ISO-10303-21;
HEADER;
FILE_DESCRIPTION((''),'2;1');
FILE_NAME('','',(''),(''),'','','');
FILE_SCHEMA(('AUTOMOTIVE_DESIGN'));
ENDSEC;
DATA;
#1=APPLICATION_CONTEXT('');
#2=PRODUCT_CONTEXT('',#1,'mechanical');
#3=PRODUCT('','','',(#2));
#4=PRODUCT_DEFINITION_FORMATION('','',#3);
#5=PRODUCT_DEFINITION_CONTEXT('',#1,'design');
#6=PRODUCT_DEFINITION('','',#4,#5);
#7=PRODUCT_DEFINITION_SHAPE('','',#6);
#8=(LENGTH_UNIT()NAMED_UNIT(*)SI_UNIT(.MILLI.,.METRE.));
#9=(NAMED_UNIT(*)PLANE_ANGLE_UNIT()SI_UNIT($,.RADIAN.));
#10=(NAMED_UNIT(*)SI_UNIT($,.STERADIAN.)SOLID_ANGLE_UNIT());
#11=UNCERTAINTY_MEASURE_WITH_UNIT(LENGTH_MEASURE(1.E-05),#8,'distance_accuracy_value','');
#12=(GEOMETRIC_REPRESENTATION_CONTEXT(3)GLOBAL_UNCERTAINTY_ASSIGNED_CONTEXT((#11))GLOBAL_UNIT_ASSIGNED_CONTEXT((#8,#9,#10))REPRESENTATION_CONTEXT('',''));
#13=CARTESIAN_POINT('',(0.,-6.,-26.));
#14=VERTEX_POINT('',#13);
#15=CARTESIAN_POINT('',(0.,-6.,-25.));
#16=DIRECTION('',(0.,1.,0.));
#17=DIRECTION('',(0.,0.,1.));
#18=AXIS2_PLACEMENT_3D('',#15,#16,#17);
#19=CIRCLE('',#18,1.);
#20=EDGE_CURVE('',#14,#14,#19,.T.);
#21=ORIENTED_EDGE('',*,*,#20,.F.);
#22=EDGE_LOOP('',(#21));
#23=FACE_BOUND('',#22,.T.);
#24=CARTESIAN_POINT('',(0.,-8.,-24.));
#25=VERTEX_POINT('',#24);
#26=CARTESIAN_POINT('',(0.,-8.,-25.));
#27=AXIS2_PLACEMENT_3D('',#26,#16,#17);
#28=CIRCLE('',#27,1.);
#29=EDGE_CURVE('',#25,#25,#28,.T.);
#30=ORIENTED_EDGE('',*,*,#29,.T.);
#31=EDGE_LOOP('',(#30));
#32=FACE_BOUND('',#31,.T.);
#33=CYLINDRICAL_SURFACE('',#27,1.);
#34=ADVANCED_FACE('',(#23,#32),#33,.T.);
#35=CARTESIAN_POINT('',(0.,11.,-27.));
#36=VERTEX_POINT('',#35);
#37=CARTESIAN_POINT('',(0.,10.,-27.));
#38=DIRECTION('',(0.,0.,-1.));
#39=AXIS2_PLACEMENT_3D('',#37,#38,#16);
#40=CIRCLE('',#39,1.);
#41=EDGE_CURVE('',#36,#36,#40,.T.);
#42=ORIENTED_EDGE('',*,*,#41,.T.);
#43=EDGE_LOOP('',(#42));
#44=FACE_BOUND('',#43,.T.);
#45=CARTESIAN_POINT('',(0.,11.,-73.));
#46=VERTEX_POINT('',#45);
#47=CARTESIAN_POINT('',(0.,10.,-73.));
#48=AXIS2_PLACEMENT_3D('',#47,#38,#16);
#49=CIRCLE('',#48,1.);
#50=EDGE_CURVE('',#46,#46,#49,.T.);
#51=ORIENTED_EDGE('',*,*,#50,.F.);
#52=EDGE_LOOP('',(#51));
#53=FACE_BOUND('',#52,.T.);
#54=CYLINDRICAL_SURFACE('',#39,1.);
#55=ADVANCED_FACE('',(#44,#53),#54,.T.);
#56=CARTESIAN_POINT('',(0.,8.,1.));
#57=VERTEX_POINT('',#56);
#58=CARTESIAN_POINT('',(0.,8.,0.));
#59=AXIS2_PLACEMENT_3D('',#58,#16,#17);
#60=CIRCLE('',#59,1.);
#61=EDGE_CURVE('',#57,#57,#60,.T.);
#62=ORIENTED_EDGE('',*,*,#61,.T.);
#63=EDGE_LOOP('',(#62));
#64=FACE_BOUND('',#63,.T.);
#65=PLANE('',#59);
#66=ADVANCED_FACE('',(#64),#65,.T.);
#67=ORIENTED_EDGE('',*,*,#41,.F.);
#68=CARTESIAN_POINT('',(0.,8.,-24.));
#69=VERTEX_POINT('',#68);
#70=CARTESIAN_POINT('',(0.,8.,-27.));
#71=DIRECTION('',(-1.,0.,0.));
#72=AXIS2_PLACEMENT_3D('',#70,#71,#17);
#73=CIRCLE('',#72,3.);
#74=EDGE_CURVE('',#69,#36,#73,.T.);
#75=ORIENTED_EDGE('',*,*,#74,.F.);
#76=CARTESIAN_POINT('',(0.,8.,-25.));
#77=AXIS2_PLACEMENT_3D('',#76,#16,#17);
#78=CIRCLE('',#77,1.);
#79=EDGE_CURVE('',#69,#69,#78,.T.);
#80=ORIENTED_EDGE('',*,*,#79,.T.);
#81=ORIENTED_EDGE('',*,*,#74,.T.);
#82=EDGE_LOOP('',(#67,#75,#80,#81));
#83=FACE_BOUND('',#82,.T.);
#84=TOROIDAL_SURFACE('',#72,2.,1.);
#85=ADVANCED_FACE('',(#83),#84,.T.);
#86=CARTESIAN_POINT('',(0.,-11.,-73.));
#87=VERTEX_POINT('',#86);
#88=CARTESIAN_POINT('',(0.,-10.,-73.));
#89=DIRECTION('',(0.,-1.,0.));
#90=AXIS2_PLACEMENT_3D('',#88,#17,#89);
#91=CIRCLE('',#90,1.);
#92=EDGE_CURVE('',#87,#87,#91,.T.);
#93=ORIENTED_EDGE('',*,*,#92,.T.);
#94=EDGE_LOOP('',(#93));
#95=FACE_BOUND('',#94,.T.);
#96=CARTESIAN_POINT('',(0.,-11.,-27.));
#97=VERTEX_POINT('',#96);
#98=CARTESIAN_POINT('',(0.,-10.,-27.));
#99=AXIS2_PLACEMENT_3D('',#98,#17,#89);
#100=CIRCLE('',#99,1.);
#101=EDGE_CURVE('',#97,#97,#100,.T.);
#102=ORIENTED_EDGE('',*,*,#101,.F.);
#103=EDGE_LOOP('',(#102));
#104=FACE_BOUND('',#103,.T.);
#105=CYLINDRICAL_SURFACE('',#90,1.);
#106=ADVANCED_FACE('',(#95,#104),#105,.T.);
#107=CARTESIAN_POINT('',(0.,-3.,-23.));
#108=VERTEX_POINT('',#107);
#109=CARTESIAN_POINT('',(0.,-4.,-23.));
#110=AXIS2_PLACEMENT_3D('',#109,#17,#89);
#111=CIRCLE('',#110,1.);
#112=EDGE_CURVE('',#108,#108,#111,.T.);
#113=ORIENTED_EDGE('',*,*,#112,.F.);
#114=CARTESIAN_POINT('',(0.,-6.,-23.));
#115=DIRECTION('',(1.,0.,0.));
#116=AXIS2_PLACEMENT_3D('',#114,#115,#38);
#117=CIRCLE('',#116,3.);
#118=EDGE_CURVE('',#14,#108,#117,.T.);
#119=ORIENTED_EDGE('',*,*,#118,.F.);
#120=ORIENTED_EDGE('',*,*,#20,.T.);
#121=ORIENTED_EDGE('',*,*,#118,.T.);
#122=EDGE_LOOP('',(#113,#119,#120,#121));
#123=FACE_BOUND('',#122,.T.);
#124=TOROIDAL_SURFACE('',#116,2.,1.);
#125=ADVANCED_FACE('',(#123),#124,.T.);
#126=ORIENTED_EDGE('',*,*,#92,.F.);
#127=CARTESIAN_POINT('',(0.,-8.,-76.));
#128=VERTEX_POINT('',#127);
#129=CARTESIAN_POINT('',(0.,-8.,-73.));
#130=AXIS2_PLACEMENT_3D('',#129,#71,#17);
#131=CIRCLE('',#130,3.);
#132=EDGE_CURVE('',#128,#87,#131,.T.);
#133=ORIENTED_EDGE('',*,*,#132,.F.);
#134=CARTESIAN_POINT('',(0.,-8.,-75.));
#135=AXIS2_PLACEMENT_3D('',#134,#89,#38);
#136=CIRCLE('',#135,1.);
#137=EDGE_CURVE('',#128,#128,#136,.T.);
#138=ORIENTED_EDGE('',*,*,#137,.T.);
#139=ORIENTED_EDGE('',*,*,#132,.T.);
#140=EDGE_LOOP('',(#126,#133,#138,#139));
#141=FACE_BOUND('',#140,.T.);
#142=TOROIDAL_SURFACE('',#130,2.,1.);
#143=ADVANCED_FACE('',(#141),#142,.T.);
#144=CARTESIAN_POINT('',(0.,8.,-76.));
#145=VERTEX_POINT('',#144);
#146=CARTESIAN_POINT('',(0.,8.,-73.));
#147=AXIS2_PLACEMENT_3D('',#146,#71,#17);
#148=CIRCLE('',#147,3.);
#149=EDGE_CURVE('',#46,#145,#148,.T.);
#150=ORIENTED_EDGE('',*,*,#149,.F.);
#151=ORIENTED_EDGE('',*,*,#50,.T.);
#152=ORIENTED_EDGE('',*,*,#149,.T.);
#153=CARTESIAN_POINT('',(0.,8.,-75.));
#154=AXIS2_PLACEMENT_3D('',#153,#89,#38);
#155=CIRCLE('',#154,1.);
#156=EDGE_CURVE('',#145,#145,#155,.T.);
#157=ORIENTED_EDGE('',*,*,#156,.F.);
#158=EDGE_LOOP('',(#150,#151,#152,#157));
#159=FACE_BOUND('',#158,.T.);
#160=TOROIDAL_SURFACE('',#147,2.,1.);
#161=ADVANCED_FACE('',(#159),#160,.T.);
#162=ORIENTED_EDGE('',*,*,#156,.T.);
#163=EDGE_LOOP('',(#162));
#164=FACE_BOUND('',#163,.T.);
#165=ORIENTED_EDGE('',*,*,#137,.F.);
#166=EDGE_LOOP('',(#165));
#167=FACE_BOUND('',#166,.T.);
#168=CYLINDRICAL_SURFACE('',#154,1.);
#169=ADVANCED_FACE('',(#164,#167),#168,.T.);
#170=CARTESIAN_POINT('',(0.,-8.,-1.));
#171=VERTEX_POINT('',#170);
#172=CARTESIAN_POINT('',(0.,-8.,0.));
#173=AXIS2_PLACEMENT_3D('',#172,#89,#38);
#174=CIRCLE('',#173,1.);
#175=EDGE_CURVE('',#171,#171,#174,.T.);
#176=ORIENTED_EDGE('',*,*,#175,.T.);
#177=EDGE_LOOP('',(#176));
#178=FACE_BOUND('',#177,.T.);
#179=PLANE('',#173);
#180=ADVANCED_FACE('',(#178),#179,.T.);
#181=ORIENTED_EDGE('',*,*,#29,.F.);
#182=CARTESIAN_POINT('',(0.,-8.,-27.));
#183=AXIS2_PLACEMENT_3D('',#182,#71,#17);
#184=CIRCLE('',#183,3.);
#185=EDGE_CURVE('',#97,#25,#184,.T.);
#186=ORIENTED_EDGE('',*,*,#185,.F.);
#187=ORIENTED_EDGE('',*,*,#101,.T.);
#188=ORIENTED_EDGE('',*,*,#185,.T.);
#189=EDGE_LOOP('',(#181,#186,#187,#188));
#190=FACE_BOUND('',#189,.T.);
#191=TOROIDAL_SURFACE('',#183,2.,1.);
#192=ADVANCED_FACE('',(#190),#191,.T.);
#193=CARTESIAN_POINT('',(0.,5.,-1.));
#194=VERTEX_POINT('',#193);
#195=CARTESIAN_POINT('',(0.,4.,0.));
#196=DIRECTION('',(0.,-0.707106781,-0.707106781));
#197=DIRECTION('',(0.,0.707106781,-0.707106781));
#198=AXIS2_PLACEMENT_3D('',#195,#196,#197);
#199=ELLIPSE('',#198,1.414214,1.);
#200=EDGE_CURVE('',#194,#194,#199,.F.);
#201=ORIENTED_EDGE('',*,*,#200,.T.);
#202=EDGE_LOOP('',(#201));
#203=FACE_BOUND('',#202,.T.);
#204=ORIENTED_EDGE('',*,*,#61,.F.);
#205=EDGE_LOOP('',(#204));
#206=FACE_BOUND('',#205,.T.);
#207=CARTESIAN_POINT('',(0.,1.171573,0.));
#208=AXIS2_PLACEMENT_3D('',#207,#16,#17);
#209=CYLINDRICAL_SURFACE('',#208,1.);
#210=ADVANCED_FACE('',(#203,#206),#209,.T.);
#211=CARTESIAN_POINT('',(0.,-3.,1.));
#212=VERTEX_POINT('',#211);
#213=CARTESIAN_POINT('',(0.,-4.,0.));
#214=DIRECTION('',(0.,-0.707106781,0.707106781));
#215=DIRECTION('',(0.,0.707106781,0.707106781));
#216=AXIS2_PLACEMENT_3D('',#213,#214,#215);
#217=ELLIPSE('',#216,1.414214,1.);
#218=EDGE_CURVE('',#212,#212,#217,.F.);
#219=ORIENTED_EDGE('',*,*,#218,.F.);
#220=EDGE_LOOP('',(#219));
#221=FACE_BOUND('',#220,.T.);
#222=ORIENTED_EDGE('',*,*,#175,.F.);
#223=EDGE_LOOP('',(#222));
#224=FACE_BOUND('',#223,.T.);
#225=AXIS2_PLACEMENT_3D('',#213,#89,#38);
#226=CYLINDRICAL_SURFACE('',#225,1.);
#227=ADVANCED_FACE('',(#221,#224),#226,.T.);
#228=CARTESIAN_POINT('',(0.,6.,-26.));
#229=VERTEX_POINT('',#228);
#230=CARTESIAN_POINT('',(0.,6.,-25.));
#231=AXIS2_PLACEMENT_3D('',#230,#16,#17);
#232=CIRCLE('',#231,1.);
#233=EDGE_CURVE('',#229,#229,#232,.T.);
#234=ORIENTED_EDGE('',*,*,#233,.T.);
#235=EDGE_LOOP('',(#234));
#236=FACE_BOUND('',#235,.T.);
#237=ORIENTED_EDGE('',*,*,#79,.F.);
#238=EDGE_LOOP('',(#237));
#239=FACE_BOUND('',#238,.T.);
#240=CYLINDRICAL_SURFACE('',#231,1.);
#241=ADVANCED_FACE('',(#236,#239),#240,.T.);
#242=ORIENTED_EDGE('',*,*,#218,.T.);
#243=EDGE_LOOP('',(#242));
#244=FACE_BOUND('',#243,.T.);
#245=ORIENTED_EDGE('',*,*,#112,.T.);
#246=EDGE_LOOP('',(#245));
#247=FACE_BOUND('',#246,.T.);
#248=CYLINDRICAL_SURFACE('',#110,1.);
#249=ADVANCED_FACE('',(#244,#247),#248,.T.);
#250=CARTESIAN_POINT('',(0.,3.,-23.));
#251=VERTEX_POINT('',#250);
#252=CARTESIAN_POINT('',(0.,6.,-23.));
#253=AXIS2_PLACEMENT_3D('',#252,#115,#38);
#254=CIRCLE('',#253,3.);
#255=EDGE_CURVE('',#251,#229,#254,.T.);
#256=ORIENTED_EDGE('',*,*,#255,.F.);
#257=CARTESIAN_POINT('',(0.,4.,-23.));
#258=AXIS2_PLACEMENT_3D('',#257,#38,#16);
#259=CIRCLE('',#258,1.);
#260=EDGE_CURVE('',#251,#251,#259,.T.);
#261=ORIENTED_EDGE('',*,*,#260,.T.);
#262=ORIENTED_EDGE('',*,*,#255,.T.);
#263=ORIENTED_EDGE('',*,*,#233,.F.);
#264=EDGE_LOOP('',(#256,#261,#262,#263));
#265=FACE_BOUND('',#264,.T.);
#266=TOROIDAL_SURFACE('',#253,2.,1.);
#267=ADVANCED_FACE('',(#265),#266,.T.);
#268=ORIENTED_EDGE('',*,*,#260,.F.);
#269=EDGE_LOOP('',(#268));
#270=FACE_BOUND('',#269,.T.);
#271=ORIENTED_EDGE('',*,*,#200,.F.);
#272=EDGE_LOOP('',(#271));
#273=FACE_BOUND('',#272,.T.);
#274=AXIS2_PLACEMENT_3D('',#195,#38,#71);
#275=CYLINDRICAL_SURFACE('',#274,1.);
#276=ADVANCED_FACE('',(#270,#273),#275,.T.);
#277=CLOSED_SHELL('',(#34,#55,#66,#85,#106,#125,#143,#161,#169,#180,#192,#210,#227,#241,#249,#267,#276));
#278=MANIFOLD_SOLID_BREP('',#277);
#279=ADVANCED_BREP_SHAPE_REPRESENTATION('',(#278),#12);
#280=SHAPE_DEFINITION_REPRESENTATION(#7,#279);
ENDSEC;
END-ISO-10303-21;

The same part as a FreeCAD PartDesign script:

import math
import FreeCAD as App
import Part
import Sketcher
from FreeCAD import Vector

doc = App.newDocument("Part")
body = doc.addObject("PartDesign::Body", "Body")

# Sketch on XZ plane
sketch1 = body.newObject("Sketcher::SketchObject", "Sketch")
sketch1.AttachmentSupport = (doc.getObject("XZ_Plane"), [""])
sketch1.MapMode = "FlatFace"
sketch1.AttachmentOffset = App.Placement(Vector(0, 0, -8), App.Rotation())
sketch1.addGeometry(Part.Circle(Vector(0, 0, 0), Vector(0, 0, 1), 1), False)
sketch1.addConstraint(Sketcher.Constraint("Coincident", 0, 3, -1, 1))
sketch1.addConstraint(Sketcher.Constraint("Diameter", 0, 2.0))

# Sketch on YZ plane
sketch2 = body.newObject("Sketcher::SketchObject", "Sketch001")
sketch2.AttachmentSupport = (doc.getObject("YZ_Plane"), [""])
sketch2.MapMode = "FlatFace"
sketch2.addGeometry(Part.LineSegment(Vector(8, 0, 0), Vector(4, 0, 0)), False)
sketch2.addGeometry(Part.LineSegment(Vector(4, 0, 0), Vector(4, -23, 0)), False)
sketch2.addGeometry(Part.ArcOfCircle(Part.Circle(Vector(6, -23, 0), Vector(0, 0, 1), 2), math.radians(-180), math.radians(-90)), False)
sketch2.addGeometry(Part.LineSegment(Vector(6, -25, 0), Vector(8, -25, 0)), False)
sketch2.addGeometry(Part.ArcOfCircle(Part.Circle(Vector(8, -27, 0), Vector(0, 0, 1), 2), math.radians(0), math.radians(90)), False)
sketch2.addGeometry(Part.LineSegment(Vector(10, -27, 0), Vector(10, -73, 0)), False)
sketch2.addGeometry(Part.ArcOfCircle(Part.Circle(Vector(8, -73, 0), Vector(0, 0, 1), 2), math.radians(-90), math.radians(0)), False)
sketch2.addGeometry(Part.LineSegment(Vector(8, -75, 0), Vector(-8, -75, 0)), False)
sketch2.addGeometry(Part.ArcOfCircle(Part.Circle(Vector(-8, -73, 0), Vector(0, 0, 1), 2), math.radians(-180), math.radians(-90)), False)
sketch2.addGeometry(Part.LineSegment(Vector(-10, -73, 0), Vector(-10, -27, 0)), False)
sketch2.addGeometry(Part.ArcOfCircle(Part.Circle(Vector(-8, -27, 0), Vector(0, 0, 1), 2), math.radians(90), math.radians(180)), False)
sketch2.addGeometry(Part.LineSegment(Vector(-8, -25, 0), Vector(-6, -25, 0)), False)
sketch2.addGeometry(Part.ArcOfCircle(Part.Circle(Vector(-6, -23, 0), Vector(0, 0, 1), 2), math.radians(-90), math.radians(0)), False)
sketch2.addGeometry(Part.LineSegment(Vector(-4, -23, 0), Vector(-4, 0, 0)), False)
sketch2.addGeometry(Part.LineSegment(Vector(-4, 0, 0), Vector(-8, 0, 0)), False)
sketch2.addConstraint(Sketcher.Constraint("Coincident", 0, 2, 1, 1))
sketch2.addConstraint(Sketcher.Constraint("Tangent", 1, 2, 2, 1))
sketch2.addConstraint(Sketcher.Constraint("Tangent", 2, 2, 3, 1))
sketch2.addConstraint(Sketcher.Constraint("Tangent", 3, 2, 4, 2))
sketch2.addConstraint(Sketcher.Constraint("Tangent", 4, 1, 5, 1))
sketch2.addConstraint(Sketcher.Constraint("Tangent", 5, 2, 6, 2))
sketch2.addConstraint(Sketcher.Constraint("Tangent", 6, 1, 7, 1))
sketch2.addConstraint(Sketcher.Constraint("Tangent", 7, 2, 8, 2))
sketch2.addConstraint(Sketcher.Constraint("Tangent", 8, 1, 9, 1))
sketch2.addConstraint(Sketcher.Constraint("Tangent", 9, 2, 10, 2))
sketch2.addConstraint(Sketcher.Constraint("Tangent", 10, 1, 11, 1))
sketch2.addConstraint(Sketcher.Constraint("Tangent", 11, 2, 12, 1))
sketch2.addConstraint(Sketcher.Constraint("Tangent", 12, 2, 13, 1))
sketch2.addConstraint(Sketcher.Constraint("Coincident", 13, 2, 14, 1))
sketch2.addConstraint(Sketcher.Constraint("Horizontal", 0))
sketch2.addConstraint(Sketcher.Constraint("Vertical", 1))
sketch2.addConstraint(Sketcher.Constraint("Horizontal", 3))
sketch2.addConstraint(Sketcher.Constraint("Vertical", 5))
sketch2.addConstraint(Sketcher.Constraint("Horizontal", 7))
sketch2.addConstraint(Sketcher.Constraint("Vertical", 9))
sketch2.addConstraint(Sketcher.Constraint("Horizontal", 11))
sketch2.addConstraint(Sketcher.Constraint("Vertical", 13))
sketch2.addConstraint(Sketcher.Constraint("Horizontal", 14))
sketch2.addConstraint(Sketcher.Constraint("Equal", 2, 4))
sketch2.addConstraint(Sketcher.Constraint("Equal", 4, 6))
sketch2.addConstraint(Sketcher.Constraint("Equal", 6, 8))
sketch2.addConstraint(Sketcher.Constraint("Equal", 8, 10))
sketch2.addConstraint(Sketcher.Constraint("Equal", 10, 12))
sketch2.addConstraint(Sketcher.Constraint("Symmetric", 0, 2, 13, 2, -1, 1))
sketch2.addConstraint(Sketcher.Constraint("Symmetric", 4, 3, 10, 3, -2))
sketch2.addConstraint(Sketcher.Constraint("Symmetric", 0, 1, 14, 2, -2))
sketch2.addConstraint(Sketcher.Constraint("Vertical", 6, 3, 0, 1))
sketch2.addConstraint(Sketcher.Constraint("Radius", 2, 2.0))
sketch2.addConstraint(Sketcher.Constraint("DistanceX", 0, 2, 0, 1, 4.0))
sketch2.addConstraint(Sketcher.Constraint("DistanceX", 7, 2, 7, 1, 16.0))
sketch2.addConstraint(Sketcher.Constraint("DistanceY", 1, 2, 1, 1, 23.0))
sketch2.addConstraint(Sketcher.Constraint("DistanceY", 5, 2, 5, 1, 46.0))
doc.recompute()

additivepipe = body.newObject("PartDesign::AdditivePipe", "AdditivePipe")
additivepipe.Profile = sketch1
additivepipe.Spine = (sketch2, ["Edge1", "Edge2", "Edge3", "Edge4", "Edge5", "Edge6", "Edge7", "Edge8", "Edge9", "Edge10", "Edge11", "Edge12", "Edge13", "Edge14", "Edge15"])
additivepipe.Transition = "Right corner"

doc.recompute()
